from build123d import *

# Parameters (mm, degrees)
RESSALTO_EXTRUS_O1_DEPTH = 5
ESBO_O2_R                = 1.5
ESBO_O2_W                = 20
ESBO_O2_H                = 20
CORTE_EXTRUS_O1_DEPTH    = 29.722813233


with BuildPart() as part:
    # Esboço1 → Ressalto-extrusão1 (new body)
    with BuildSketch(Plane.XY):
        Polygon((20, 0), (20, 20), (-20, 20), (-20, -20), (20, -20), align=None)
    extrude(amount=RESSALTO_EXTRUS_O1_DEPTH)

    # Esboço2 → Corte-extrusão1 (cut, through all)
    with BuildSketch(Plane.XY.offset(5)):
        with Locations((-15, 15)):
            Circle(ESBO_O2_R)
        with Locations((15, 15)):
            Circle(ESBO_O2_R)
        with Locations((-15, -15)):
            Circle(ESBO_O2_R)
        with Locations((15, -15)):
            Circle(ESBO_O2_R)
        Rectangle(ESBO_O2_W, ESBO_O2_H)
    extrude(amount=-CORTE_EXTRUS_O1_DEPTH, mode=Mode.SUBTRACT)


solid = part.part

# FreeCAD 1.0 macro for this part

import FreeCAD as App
import Part
import Sketcher
from FreeCAD import Vector
Q = App.Units.Quantity


def add_polygon(sketch, points):
    """Adds a closed chain of lines whose ends are joined by coincident constraints."""
    first, n = sketch.GeometryCount, len(points)
    for a, b in zip(points, points[1:] + points[:1]):
        sketch.addGeometry(Part.LineSegment(App.Vector(*a, 0), App.Vector(*b, 0)), False)
    for i in range(n):
        sketch.addConstraint(Sketcher.Constraint("Coincident", first + i, 2, first + (i + 1) % n, 1))

doc = App.newDocument("Part")
body = doc.addObject("PartDesign::Body", "Body")

# Sketch on XY plane
sketch1 = body.newObject("Sketcher::SketchObject", "Sketch")
sketch1.AttachmentSupport = (doc.getObject("XY_Plane"), [""])
sketch1.MapMode = "FlatFace"
add_polygon(sketch1, [(20, 20), (-20, 20), (-20, -20), (20, -20)])  # lines 0-3
sketch1.addConstraint([
    Sketcher.Constraint("Horizontal", 0),
    Sketcher.Constraint("Vertical", 1),
    Sketcher.Constraint("Horizontal", 2),
    Sketcher.Constraint("Vertical", 3),
    Sketcher.Constraint("Symmetric", 0, 2, 2, 2, -1, 1),
    Sketcher.Constraint("Equal", 2, 1),
    Sketcher.Constraint("DistanceX", 0, 2, 0, 1, Q("40 mm")),
])
pad1 = body.newObject("PartDesign::Pad", "Pad")
pad1.Profile = sketch1
pad1.Length = 5

# Sketch on XY plane
sketch2 = body.newObject("Sketcher::SketchObject", "Sketch001")
sketch2.AttachmentSupport = (doc.getObject("XY_Plane"), [""])
sketch2.MapMode = "FlatFace"
sketch2.AttachmentOffset = App.Placement(Vector(0, 0, 5), App.Rotation())
sketch2.addGeometry(Part.Circle(Vector(-15, 15, 0), Vector(0, 0, 1), 1.5), False)  # 0
sketch2.addGeometry(Part.Circle(Vector(15, 15, 0), Vector(0, 0, 1), 1.5), False)  # 1
sketch2.addGeometry(Part.Circle(Vector(-15, -15, 0), Vector(0, 0, 1), 1.5), False)  # 2
sketch2.addGeometry(Part.Circle(Vector(15, -15, 0), Vector(0, 0, 1), 1.5), False)  # 3
add_polygon(sketch2, [(-10, 10), (-10, -10), (10, -10), (10, 10)])  # lines 4-7
sketch2.addConstraint([
    Sketcher.Constraint("Vertical", 4),
    Sketcher.Constraint("Horizontal", 5),
    Sketcher.Constraint("Vertical", 6),
    Sketcher.Constraint("Horizontal", 7),
    Sketcher.Constraint("Equal", 0, 1),
    Sketcher.Constraint("Equal", 1, 2),
    Sketcher.Constraint("Equal", 2, 3),
    Sketcher.Constraint("Symmetric", 1, 3, 2, 3, -1, 1),
    Sketcher.Constraint("Symmetric", 0, 3, 3, 3, -1, 1),
    Sketcher.Constraint("Symmetric", 4, 2, 6, 2, -1, 1),
    Sketcher.Constraint("Symmetric", 0, 3, 1, 3, -2),
    Sketcher.Constraint("Equal", 7, 4),
    Sketcher.Constraint("Diameter", 0, Q("3 mm")),
    Sketcher.Constraint("DistanceX", 5, 1, 5, 2, Q("20 mm")),
    Sketcher.Constraint("DistanceX", 0, 3, -1, 1, Q("15 mm")),
    Sketcher.Constraint("DistanceY", -1, 1, 0, 3, Q("15 mm")),
])
pocket1 = body.newObject("PartDesign::Pocket", "Pocket")
pocket1.Profile = sketch2
pocket1.Type = "ThroughAll"

doc.recompute()
